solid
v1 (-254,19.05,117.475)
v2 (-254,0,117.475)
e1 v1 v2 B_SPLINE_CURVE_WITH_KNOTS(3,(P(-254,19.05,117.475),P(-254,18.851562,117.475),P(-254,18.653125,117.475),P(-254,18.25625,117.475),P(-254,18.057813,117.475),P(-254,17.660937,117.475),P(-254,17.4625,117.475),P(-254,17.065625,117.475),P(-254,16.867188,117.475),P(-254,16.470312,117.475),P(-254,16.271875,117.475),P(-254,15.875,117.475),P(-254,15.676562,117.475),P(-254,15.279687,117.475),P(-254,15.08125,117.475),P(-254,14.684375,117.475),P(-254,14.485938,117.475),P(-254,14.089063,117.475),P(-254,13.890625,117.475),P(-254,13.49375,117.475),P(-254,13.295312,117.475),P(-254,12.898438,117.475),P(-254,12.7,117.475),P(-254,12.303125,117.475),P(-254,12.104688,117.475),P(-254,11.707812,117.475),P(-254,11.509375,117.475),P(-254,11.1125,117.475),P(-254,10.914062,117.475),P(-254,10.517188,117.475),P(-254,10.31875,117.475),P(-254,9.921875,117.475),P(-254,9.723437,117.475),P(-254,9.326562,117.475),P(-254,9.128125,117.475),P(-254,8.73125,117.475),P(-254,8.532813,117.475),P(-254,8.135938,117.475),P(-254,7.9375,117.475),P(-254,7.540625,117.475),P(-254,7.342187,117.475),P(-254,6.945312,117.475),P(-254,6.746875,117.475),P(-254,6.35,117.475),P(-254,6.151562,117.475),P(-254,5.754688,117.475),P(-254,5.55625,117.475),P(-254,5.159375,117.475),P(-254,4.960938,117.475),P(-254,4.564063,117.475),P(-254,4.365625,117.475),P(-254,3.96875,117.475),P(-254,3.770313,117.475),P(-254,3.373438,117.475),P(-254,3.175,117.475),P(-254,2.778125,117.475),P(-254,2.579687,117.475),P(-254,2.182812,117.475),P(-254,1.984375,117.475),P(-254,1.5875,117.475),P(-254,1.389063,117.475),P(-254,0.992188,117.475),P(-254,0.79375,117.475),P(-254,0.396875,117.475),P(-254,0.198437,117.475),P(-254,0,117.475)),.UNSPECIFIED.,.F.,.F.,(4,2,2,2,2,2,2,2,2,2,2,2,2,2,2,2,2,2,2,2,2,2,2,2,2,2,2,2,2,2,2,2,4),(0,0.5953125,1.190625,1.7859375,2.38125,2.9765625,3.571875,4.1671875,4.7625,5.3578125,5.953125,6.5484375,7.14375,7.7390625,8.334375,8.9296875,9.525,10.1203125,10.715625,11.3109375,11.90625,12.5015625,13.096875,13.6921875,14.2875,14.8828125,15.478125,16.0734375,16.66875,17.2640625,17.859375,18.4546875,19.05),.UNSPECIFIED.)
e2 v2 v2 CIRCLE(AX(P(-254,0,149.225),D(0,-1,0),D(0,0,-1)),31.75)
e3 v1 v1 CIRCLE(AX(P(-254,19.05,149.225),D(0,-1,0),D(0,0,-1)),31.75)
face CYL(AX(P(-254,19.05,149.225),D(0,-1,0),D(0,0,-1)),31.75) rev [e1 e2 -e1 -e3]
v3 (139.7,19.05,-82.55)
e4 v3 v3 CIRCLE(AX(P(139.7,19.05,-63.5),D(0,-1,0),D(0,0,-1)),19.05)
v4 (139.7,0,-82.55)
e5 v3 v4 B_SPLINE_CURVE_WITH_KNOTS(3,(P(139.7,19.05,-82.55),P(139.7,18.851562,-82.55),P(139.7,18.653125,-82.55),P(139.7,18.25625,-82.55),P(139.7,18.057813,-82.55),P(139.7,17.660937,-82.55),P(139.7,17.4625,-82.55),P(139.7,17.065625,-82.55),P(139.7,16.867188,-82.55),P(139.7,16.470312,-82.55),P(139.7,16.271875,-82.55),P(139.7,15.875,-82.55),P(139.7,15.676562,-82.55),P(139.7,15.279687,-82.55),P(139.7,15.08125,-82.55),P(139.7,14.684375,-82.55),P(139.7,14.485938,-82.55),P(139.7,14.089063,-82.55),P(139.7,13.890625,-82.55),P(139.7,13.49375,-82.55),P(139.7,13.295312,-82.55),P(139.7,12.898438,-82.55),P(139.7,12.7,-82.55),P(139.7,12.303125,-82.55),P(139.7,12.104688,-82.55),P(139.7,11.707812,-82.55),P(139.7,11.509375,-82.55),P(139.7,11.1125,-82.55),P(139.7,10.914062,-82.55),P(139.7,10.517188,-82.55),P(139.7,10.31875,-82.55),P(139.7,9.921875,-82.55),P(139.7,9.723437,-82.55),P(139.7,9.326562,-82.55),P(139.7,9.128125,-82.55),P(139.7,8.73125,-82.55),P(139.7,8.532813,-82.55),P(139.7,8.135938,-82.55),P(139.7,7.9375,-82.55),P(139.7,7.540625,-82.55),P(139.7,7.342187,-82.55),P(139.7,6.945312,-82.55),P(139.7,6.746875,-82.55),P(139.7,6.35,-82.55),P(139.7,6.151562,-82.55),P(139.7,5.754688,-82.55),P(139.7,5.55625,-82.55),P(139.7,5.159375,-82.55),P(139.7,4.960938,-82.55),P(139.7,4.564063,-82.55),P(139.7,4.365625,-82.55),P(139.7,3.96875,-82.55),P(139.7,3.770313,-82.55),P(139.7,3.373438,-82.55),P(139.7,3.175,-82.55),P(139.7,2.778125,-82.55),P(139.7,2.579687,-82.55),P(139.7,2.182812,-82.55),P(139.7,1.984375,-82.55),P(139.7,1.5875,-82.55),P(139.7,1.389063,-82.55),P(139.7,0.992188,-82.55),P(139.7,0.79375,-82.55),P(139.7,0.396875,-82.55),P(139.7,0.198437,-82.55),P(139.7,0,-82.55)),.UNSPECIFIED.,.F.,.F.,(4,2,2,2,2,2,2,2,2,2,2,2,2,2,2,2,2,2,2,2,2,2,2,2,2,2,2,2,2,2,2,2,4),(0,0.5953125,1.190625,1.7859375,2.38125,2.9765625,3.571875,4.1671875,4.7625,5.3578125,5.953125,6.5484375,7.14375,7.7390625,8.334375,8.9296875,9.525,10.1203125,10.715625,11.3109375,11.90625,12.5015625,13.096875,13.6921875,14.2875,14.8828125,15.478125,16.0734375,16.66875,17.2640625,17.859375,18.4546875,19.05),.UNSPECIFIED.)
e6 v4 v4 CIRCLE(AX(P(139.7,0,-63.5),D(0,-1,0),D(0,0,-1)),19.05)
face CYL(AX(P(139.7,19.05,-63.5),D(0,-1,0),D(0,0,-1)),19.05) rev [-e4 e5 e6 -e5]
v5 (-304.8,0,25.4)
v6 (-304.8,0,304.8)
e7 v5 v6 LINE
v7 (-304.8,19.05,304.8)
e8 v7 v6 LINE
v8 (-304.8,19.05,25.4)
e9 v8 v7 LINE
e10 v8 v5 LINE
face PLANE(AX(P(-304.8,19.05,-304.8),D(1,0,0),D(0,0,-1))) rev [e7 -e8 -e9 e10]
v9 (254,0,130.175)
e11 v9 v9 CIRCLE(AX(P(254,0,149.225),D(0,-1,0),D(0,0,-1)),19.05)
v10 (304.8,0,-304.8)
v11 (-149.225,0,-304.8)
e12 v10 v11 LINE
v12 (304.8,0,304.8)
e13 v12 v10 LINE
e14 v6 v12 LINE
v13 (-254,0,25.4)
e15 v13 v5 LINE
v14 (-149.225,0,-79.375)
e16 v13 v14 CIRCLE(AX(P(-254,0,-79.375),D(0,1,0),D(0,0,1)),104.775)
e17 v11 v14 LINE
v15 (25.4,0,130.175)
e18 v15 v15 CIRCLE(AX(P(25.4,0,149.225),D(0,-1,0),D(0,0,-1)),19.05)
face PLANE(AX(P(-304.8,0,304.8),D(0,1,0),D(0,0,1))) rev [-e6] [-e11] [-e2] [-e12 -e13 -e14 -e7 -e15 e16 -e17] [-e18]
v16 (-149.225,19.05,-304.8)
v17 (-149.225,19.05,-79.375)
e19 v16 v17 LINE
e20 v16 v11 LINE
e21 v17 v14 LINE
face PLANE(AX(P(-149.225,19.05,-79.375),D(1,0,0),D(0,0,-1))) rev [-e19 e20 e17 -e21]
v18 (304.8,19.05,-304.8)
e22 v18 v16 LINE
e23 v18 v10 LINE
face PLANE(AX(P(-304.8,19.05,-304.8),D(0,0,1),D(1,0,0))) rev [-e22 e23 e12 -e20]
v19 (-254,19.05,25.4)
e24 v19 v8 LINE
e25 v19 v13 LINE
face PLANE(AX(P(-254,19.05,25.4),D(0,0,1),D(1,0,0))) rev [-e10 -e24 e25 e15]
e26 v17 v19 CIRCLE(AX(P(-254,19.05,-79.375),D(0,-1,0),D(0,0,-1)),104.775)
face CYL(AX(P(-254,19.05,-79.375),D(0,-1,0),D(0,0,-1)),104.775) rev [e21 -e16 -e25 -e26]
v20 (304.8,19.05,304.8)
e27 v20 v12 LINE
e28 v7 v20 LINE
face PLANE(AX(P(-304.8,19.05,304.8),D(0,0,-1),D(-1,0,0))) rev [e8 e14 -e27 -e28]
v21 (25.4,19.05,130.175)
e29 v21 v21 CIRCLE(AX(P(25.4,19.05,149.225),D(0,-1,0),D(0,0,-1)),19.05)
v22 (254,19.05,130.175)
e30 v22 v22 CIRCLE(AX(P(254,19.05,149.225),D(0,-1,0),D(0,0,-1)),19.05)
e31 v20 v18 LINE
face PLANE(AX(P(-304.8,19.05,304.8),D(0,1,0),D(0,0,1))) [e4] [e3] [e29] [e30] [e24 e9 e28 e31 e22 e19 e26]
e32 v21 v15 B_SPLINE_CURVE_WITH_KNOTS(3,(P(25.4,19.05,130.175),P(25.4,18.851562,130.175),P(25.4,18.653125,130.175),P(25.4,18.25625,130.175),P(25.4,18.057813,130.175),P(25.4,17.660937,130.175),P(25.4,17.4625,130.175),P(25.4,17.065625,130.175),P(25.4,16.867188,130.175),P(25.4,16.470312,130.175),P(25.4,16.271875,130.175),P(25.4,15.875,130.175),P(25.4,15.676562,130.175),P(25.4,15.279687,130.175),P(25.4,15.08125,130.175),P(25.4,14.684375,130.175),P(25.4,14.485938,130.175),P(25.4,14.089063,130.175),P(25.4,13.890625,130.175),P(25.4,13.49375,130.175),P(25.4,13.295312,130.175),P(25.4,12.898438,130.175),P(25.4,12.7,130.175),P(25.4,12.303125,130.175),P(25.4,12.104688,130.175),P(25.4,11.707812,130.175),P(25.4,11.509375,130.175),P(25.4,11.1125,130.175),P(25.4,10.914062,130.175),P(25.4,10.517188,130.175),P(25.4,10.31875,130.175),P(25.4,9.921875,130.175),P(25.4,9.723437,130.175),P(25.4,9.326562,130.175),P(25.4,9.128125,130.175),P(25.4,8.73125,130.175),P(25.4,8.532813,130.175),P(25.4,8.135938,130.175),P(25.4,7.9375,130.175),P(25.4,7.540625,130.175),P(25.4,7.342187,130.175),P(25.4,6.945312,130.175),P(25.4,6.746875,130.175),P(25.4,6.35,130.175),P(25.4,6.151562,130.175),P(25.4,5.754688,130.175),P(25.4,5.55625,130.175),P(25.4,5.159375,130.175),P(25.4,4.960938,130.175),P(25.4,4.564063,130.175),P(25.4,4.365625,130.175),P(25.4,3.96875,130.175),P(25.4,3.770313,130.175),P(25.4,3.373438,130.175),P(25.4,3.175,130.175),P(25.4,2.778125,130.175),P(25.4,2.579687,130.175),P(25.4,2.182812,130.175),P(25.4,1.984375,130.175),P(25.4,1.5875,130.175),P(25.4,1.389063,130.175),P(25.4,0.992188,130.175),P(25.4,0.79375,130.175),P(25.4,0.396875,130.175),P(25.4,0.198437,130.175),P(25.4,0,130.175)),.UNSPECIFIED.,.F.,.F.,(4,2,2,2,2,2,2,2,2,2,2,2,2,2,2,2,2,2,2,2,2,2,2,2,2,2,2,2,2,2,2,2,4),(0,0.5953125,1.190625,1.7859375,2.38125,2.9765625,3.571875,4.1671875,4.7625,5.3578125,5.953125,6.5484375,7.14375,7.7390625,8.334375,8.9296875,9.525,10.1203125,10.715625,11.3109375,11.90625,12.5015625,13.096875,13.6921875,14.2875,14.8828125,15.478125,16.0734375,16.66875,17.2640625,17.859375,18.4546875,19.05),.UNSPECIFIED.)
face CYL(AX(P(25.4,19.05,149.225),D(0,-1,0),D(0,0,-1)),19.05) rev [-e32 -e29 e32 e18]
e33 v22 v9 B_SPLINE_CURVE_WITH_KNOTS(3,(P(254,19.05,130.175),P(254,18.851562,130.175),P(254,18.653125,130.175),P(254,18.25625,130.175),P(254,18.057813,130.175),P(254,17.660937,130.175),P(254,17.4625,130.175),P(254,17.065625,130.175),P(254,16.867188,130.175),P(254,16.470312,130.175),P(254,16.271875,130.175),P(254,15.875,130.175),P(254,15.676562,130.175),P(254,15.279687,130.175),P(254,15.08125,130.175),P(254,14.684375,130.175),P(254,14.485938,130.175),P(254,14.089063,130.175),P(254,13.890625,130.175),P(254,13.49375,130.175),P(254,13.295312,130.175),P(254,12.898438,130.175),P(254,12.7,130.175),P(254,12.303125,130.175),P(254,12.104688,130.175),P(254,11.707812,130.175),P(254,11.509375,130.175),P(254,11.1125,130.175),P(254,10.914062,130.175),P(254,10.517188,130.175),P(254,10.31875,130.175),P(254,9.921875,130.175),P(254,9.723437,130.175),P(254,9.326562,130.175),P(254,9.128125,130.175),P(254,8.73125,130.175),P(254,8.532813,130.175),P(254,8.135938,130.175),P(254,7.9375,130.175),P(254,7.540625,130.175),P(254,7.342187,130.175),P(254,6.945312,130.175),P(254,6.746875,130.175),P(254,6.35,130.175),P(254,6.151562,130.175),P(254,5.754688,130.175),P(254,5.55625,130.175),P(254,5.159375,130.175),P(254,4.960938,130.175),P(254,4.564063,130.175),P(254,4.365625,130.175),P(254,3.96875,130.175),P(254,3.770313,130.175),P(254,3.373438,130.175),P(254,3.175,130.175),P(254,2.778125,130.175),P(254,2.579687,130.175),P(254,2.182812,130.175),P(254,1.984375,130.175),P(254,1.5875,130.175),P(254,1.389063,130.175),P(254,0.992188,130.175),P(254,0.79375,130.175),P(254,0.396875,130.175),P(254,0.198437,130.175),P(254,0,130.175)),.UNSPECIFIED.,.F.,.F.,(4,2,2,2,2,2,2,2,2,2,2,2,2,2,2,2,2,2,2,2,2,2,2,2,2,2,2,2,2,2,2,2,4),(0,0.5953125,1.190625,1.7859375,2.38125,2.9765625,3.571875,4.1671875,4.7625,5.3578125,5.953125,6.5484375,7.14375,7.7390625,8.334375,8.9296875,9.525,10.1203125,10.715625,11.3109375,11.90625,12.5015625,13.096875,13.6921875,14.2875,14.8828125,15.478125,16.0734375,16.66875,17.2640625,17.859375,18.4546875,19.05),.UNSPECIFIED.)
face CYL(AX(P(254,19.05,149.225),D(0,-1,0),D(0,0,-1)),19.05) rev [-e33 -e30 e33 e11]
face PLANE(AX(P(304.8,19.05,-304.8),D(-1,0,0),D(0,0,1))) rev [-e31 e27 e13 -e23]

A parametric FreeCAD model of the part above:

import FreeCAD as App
import Part
import Sketcher
Q = App.Units.Quantity

doc = App.newDocument("Part")
body = doc.addObject("PartDesign::Body", "Body")

# Sketch on XZ plane
sketch1 = body.newObject("Sketcher::SketchObject", "Sketch")
sketch1.AttachmentSupport = (doc.getObject("XZ_Plane"), [""])
sketch1.MapMode = "FlatFace"
sketch1.addGeometry(Part.LineSegment(App.Vector(-304.8, -304.8, 0), App.Vector(-304.8, 304.8, 0)), False)
sketch1.addGeometry(Part.LineSegment(App.Vector(-304.8, 304.8, 0), App.Vector(304.8, 304.8, 0)), False)
sketch1.addGeometry(Part.LineSegment(App.Vector(304.8, 304.8, 0), App.Vector(304.8, -304.8, 0)), False)
sketch1.addGeometry(Part.LineSegment(App.Vector(304.8, -304.8, 0), App.Vector(-304.8, -304.8, 0)), False)
sketch1.addConstraint(Sketcher.Constraint("Coincident", 0, 2, 1, 1))
sketch1.addConstraint(Sketcher.Constraint("Coincident", 1, 2, 2, 1))
sketch1.addConstraint(Sketcher.Constraint("Coincident", 2, 2, 3, 1))
sketch1.addConstraint(Sketcher.Constraint("Coincident", 3, 2, 0, 1))
sketch1.addConstraint(Sketcher.Constraint("Vertical", 0))
sketch1.addConstraint(Sketcher.Constraint("Horizontal", 1))
sketch1.addConstraint(Sketcher.Constraint("Vertical", 2))
sketch1.addConstraint(Sketcher.Constraint("Horizontal", 3))
sketch1.addConstraint(Sketcher.Constraint("Symmetric", 0, 2, 2, 2, -1, 1))
sketch1.addConstraint(Sketcher.Constraint("Equal", 3, 0))
sketch1.addConstraint(Sketcher.Constraint("DistanceX", 1, 1, 1, 2, Q("24 in")))
pad1 = body.newObject("PartDesign::Pad", "Pad")
pad1.Profile = sketch1
pad1.Length = Q("0.75 in")
pad1.Reversed = True

# Sketch on XZ plane
sketch2 = body.newObject("Sketcher::SketchObject", "Sketch001")
sketch2.AttachmentSupport = (doc.getObject("XZ_Plane"), [""])
sketch2.MapMode = "FlatFace"
sketch2.addGeometry(Part.Circle(App.Vector(-254, 149.225, 0), App.Vector(0, 0, 1), 31.75), False)
sketch2.addConstraint(Sketcher.Constraint("Diameter", 0, Q("2.5 in")))
sketch2.addConstraint(Sketcher.Constraint("DistanceX", 0, 3, -1, 1, Q("10 in")))
sketch2.addConstraint(Sketcher.Constraint("DistanceY", -1, 1, 0, 3, Q("5.875 in")))
pocket1 = body.newObject("PartDesign::Pocket", "Pocket")
pocket1.Profile = sketch2
pocket1.Type = "ThroughAll"

# Sketch on XZ plane
sketch3 = body.newObject("Sketcher::SketchObject", "Sketch002")
sketch3.AttachmentSupport = (doc.getObject("XZ_Plane"), [""])
sketch3.MapMode = "FlatFace"
sketch3.addGeometry(Part.Circle(App.Vector(-254, -79.375, 0), App.Vector(0, 0, 1), 104.775), False)
sketch3.addConstraint(Sketcher.Constraint("Diameter", 0, Q("8.25 in")))
sketch3.addConstraint(Sketcher.Constraint("DistanceX", 0, 3, -1, 1, Q("10 in")))
sketch3.addConstraint(Sketcher.Constraint("DistanceY", 0, 3, -1, 1, Q("3.125 in")))
pocket2 = body.newObject("PartDesign::Pocket", "Pocket001")
pocket2.Profile = sketch3
pocket2.Type = "ThroughAll"

# Sketch on XZ plane
sketch4 = body.newObject("Sketcher::SketchObject", "Sketch003")
sketch4.AttachmentSupport = (doc.getObject("XZ_Plane"), [""])
sketch4.MapMode = "FlatFace"
sketch4.addGeometry(Part.LineSegment(App.Vector(-149.225, -79.375, 0), App.Vector(-304.8, -79.375, 0)), False)
sketch4.addGeometry(Part.LineSegment(App.Vector(-304.8, -79.375, 0), App.Vector(-304.8, -304.8, 0)), False)
sketch4.addGeometry(Part.LineSegment(App.Vector(-304.8, -304.8, 0), App.Vector(-149.225, -304.8, 0)), False)
sketch4.addGeometry(Part.LineSegment(App.Vector(-149.225, -304.8, 0), App.Vector(-149.225, -79.375, 0)), False)
sketch4.addConstraint(Sketcher.Constraint("Coincident", 0, 2, 1, 1))
sketch4.addConstraint(Sketcher.Constraint("Coincident", 1, 2, 2, 1))
sketch4.addConstraint(Sketcher.Constraint("Coincident", 2, 2, 3, 1))
sketch4.addConstraint(Sketcher.Constraint("Coincident", 3, 2, 0, 1))
sketch4.addConstraint(Sketcher.Constraint("Horizontal", 0))
sketch4.addConstraint(Sketcher.Constraint("Vertical", 1))
sketch4.addConstraint(Sketcher.Constraint("Horizontal", 2))
sketch4.addConstraint(Sketcher.Constraint("Vertical", 3))
sketch4.addConstraint(Sketcher.Constraint("DistanceX", 0, 2, -1, 1, Q("12 in")))
sketch4.addConstraint(Sketcher.Constraint("DistanceY", 1, 2, -1, 1, Q("12 in")))
sketch4.addConstraint(Sketcher.Constraint("DistanceX", 0, 2, 0, 1, Q("6.125 in")))
sketch4.addConstraint(Sketcher.Constraint("DistanceY", 1, 2, 1, 1, Q("8.875 in")))
pocket3 = body.newObject("PartDesign::Pocket", "Pocket002")
pocket3.Profile = sketch4
pocket3.Type = "ThroughAll"

# Sketch on XZ plane
sketch5 = body.newObject("Sketcher::SketchObject", "Sketch004")
sketch5.AttachmentSupport = (doc.getObject("XZ_Plane"), [""])
sketch5.MapMode = "FlatFace"
sketch5.addGeometry(Part.LineSegment(App.Vector(-377.071999, 25.4, 0), App.Vector(-377.071999, -79.375, 0)), False)
sketch5.addGeometry(Part.LineSegment(App.Vector(-377.071999, -79.375, 0), App.Vector(-254, -79.375, 0)), False)
sketch5.addGeometry(Part.LineSegment(App.Vector(-254, -79.375, 0), App.Vector(-254, 25.4, 0)), False)
sketch5.addGeometry(Part.LineSegment(App.Vector(-254, 25.4, 0), App.Vector(-377.071999, 25.4, 0)), False)
sketch5.addConstraint(Sketcher.Constraint("Coincident", 0, 2, 1, 1))
sketch5.addConstraint(Sketcher.Constraint("Coincident", 1, 2, 2, 1))
sketch5.addConstraint(Sketcher.Constraint("Coincident", 2, 2, 3, 1))
sketch5.addConstraint(Sketcher.Constraint("Coincident", 3, 2, 0, 1))
sketch5.addConstraint(Sketcher.Constraint("Vertical", 0))
sketch5.addConstraint(Sketcher.Constraint("Horizontal", 1))
sketch5.addConstraint(Sketcher.Constraint("Vertical", 2))
sketch5.addConstraint(Sketcher.Constraint("Horizontal", 3))
sketch5.addConstraint(Sketcher.Constraint("DistanceX", 1, 2, -1, 1, Q("10 in")))
sketch5.addConstraint(Sketcher.Constraint("DistanceY", -1, 1, 2, 2, Q("1 in")))
sketch5.addConstraint(Sketcher.Constraint("DistanceY", 0, 2, 0, 1, Q("4.125 in")))
sketch5.addConstraint(Sketcher.Constraint("DistanceX", 1, 1, 1, 2, 123.071999))
pocket4 = body.newObject("PartDesign::Pocket", "Pocket003")
pocket4.Profile = sketch5
pocket4.Type = "ThroughAll"

# Sketch on XZ plane
sketch6 = body.newObject("Sketcher::SketchObject", "Sketch005")
sketch6.AttachmentSupport = (doc.getObject("XZ_Plane"), [""])
sketch6.MapMode = "FlatFace"
sketch6.addGeometry(Part.Circle(App.Vector(25.4, 149.225, 0), App.Vector(0, 0, 1), 19.05), False)
sketch6.addGeometry(Part.Circle(App.Vector(254, 149.225, 0), App.Vector(0, 0, 1), 19.05), False)
sketch6.addConstraint(Sketcher.Constraint("Equal", 0, 1))
sketch6.addConstraint(Sketcher.Constraint("Horizontal", 0, 3, 1, 3))
sketch6.addConstraint(Sketcher.Constraint("Diameter", 0, Q("1.5 in")))
sketch6.addConstraint(Sketcher.Constraint("DistanceX", -1, 1, 0, 3, Q("1 in")))
sketch6.addConstraint(Sketcher.Constraint("DistanceX", -1, 1, 1, 3, Q("10 in")))
sketch6.addConstraint(Sketcher.Constraint("DistanceY", -1, 1, 0, 3, Q("5.875 in")))
pocket5 = body.newObject("PartDesign::Pocket", "Pocket004")
pocket5.Profile = sketch6
pocket5.Type = "ThroughAll"

# Sketch on XZ plane
sketch7 = body.newObject("Sketcher::SketchObject", "Sketch006")
sketch7.AttachmentSupport = (doc.getObject("XZ_Plane"), [""])
sketch7.MapMode = "FlatFace"
sketch7.addGeometry(Part.Circle(App.Vector(139.7, -63.5, 0), App.Vector(0, 0, 1), 19.05), False)
sketch7.addConstraint(Sketcher.Constraint("Diameter", 0, Q("1.5 in")))
sketch7.addConstraint(Sketcher.Constraint("DistanceX", -1, 1, 0, 3, Q("5.5 in")))
sketch7.addConstraint(Sketcher.Constraint("DistanceY", 0, 3, -1, 1, Q("2.5 in")))
pocket6 = body.newObject("PartDesign::Pocket", "Pocket005")
pocket6.Profile = sketch7
pocket6.Type = "ThroughAll"

doc.recompute()
